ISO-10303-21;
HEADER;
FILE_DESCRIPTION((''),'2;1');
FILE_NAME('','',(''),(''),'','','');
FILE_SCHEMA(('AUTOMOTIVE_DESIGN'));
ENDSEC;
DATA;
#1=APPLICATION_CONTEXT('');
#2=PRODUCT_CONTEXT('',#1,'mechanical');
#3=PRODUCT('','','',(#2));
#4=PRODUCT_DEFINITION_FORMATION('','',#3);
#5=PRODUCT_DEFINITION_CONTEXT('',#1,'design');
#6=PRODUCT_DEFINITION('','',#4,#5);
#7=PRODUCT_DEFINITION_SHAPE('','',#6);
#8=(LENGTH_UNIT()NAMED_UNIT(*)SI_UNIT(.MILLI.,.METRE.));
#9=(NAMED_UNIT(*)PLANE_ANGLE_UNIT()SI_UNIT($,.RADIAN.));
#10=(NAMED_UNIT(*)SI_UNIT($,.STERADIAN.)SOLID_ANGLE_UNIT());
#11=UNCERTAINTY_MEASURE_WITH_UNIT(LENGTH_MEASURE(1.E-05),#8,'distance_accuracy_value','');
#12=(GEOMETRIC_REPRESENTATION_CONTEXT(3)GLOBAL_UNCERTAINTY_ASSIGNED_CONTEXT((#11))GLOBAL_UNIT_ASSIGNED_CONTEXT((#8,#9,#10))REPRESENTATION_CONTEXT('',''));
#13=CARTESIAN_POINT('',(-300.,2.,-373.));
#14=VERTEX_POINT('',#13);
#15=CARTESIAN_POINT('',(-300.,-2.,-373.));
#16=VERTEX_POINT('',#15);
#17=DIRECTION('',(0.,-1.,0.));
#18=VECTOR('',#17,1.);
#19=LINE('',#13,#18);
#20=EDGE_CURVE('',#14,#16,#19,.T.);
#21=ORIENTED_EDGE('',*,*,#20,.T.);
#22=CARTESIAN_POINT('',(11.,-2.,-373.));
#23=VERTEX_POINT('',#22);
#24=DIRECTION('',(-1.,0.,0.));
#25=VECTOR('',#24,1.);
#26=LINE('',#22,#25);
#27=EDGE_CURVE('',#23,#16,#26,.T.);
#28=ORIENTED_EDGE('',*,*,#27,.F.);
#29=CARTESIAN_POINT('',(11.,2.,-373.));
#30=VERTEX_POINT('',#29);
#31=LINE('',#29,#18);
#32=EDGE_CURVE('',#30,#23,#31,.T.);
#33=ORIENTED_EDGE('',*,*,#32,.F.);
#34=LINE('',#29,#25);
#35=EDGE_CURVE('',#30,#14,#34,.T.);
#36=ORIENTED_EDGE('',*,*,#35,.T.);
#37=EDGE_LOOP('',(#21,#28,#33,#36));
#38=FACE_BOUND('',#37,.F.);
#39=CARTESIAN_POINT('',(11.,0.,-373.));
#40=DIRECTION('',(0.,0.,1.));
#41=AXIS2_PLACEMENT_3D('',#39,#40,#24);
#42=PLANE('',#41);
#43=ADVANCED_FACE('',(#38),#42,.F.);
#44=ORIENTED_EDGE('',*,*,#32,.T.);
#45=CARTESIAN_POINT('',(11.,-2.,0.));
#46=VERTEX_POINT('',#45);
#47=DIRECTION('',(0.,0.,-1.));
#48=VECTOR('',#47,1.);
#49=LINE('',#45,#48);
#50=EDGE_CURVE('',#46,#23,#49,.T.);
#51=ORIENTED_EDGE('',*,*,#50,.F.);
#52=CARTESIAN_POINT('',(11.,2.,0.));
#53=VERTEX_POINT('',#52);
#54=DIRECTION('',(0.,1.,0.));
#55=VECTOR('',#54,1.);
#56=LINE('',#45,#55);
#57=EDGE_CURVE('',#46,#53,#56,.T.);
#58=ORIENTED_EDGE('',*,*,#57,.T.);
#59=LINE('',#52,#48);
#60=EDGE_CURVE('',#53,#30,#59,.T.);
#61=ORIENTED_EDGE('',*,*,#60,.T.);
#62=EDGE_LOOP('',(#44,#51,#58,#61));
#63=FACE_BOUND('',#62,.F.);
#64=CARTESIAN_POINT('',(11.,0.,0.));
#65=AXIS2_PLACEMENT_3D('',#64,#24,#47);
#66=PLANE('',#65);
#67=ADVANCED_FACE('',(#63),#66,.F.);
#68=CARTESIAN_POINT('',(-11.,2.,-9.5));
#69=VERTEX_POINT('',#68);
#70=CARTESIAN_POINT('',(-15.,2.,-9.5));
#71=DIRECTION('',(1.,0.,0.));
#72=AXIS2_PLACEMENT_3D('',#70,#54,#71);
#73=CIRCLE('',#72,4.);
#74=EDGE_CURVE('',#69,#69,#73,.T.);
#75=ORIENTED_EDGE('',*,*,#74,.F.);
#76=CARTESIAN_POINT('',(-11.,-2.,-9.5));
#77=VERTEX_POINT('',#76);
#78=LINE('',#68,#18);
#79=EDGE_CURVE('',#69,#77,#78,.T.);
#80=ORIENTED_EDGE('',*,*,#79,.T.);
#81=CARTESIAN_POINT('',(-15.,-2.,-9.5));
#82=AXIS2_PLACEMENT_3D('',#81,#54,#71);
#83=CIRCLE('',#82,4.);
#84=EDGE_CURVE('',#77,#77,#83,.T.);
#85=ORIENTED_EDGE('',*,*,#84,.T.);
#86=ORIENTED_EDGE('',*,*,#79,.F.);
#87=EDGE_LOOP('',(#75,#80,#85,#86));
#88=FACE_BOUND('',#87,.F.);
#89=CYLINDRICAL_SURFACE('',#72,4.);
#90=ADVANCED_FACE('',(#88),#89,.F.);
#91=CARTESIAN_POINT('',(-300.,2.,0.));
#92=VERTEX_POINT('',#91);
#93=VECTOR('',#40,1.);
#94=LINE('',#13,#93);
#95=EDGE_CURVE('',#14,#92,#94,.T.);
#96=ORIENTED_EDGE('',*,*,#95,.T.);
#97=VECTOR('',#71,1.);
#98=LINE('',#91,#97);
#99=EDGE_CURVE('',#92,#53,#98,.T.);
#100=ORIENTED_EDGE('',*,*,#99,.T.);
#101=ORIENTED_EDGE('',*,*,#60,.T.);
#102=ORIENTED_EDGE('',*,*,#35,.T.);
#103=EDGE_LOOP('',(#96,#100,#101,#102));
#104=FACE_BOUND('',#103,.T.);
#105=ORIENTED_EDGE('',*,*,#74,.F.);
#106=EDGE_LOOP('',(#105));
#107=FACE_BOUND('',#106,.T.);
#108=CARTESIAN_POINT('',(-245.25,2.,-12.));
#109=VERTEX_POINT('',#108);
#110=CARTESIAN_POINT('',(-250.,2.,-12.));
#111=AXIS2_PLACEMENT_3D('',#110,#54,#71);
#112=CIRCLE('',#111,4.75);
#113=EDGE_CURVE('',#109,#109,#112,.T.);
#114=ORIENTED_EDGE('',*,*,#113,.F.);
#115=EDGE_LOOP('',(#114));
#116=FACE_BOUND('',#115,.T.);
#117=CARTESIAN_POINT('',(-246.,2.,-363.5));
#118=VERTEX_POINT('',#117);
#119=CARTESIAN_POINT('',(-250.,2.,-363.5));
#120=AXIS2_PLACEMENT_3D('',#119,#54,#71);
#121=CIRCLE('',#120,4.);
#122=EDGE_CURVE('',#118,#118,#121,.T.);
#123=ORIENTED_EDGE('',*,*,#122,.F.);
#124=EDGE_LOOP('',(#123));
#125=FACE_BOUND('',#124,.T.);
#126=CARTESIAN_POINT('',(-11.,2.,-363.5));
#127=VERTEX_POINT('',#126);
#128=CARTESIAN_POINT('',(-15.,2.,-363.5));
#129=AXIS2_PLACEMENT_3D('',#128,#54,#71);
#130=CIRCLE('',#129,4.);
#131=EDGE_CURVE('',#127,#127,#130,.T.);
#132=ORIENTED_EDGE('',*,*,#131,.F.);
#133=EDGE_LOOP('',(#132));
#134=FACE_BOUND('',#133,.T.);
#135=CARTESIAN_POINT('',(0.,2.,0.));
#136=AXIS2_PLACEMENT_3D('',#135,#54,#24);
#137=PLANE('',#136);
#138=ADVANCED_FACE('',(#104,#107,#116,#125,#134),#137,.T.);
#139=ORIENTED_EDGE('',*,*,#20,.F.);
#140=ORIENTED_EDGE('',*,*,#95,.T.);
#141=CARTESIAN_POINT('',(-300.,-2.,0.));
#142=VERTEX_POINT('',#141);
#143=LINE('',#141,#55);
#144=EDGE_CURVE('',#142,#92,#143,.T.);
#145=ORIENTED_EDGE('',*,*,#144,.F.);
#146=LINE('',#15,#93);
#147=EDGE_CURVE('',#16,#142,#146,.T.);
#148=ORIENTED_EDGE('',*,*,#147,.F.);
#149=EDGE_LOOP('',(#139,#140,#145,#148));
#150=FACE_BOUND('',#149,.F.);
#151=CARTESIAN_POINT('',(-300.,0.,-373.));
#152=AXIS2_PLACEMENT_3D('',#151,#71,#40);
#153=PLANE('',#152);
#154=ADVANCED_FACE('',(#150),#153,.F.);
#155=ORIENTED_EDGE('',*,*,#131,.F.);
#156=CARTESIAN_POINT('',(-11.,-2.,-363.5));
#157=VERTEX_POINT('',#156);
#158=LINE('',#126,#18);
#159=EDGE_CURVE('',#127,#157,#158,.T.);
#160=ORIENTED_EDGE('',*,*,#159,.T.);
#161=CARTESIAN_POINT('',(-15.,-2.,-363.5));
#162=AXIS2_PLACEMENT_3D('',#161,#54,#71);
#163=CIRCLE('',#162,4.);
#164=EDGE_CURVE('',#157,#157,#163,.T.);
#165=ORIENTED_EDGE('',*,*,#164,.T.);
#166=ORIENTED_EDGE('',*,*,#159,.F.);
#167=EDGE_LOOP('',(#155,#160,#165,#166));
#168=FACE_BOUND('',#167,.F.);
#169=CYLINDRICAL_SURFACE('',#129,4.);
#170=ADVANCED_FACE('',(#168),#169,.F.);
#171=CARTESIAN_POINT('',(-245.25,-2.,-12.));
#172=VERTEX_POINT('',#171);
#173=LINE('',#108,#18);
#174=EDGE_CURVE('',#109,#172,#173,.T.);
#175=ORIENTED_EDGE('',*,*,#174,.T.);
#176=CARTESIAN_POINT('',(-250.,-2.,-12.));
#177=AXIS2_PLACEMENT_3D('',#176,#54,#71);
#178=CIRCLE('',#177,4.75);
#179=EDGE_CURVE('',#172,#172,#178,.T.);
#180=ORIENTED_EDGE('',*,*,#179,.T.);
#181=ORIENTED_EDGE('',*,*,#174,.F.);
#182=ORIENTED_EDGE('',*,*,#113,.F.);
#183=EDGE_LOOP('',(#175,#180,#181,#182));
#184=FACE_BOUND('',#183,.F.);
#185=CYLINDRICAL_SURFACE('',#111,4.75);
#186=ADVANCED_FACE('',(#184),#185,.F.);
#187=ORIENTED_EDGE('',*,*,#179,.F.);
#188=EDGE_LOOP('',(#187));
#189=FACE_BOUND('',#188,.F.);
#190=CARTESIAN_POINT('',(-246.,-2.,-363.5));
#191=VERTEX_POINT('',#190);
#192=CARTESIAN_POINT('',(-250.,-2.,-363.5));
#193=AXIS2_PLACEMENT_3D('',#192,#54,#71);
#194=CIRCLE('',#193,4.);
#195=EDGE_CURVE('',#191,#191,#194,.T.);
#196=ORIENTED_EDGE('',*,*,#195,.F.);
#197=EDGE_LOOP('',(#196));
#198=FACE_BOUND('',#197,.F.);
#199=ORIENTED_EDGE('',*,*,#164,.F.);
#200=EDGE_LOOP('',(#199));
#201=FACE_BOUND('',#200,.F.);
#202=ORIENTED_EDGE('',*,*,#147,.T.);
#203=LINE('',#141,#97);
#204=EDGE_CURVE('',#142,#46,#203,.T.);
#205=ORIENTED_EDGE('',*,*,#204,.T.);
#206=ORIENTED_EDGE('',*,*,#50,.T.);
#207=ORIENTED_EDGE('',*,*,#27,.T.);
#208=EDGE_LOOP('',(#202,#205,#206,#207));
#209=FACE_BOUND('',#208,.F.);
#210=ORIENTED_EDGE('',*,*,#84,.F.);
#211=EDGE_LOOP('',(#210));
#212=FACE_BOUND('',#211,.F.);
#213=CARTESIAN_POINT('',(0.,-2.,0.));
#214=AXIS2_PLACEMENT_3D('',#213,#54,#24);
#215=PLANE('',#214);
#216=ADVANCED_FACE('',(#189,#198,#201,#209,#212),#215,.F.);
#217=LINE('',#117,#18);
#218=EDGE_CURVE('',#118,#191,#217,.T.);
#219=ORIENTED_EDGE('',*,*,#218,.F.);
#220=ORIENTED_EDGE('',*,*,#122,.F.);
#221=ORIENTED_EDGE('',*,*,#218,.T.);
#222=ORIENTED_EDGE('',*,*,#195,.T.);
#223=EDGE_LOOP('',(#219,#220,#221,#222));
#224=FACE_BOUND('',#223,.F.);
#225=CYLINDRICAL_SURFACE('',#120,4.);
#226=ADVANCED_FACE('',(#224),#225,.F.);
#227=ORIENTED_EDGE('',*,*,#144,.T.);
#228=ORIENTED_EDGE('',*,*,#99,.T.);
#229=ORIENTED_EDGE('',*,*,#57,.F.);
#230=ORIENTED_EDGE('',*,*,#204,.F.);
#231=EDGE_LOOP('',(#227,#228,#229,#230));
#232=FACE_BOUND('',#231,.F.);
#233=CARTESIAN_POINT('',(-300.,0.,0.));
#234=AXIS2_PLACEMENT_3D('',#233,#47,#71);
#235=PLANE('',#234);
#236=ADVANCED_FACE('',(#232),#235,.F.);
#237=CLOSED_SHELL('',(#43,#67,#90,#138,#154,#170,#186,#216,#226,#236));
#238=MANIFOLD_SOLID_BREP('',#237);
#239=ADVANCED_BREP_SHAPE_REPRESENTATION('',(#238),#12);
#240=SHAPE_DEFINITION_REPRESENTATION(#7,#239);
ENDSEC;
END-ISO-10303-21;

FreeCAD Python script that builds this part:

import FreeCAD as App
import Part
import Sketcher
from FreeCAD import Vector


def add_polygon(sketch, points):
    """Adds a closed chain of lines whose ends are joined by coincident constraints."""
    first, n = sketch.GeometryCount, len(points)
    for a, b in zip(points, points[1:] + points[:1]):
        sketch.addGeometry(Part.LineSegment(App.Vector(*a, 0), App.Vector(*b, 0)), False)
    for i in range(n):
        sketch.addConstraint(Sketcher.Constraint("Coincident", first + i, 2, first + (i + 1) % n, 1))

doc = App.newDocument("Part")
body = doc.addObject("PartDesign::Body", "Body")

# Sketch on XZ plane
sketch1 = body.newObject("Sketcher::SketchObject", "Sketch")
sketch1.AttachmentSupport = (doc.getObject("XZ_Plane"), [""])
sketch1.MapMode = "FlatFace"
add_polygon(sketch1, [(-300, -373), (-300, 0), (11, 0), (11, -373)])  # lines 0-3
sketch1.addConstraint(Sketcher.Constraint("Vertical", 0))
sketch1.addConstraint(Sketcher.Constraint("Horizontal", 1))
sketch1.addConstraint(Sketcher.Constraint("Vertical", 2))
sketch1.addConstraint(Sketcher.Constraint("Horizontal", 3))
sketch1.addConstraint(Sketcher.Constraint("PointOnObject", 0, 2, -1))
sketch1.addConstraint(Sketcher.Constraint("DistanceX", 1, 1, 1, 2, 311.0))
sketch1.addConstraint(Sketcher.Constraint("DistanceY", 0, 1, 0, 2, 373.0))
sketch1.addConstraint(Sketcher.Constraint("DistanceX", 0, 2, -1, 1, 300.0))
pad1 = body.newObject("PartDesign::Pad", "Pad")
pad1.Profile = sketch1
pad1.Length = 4
pad1.Midplane = True

# Sketch on XZ plane
sketch2 = body.newObject("Sketcher::SketchObject", "Sketch001")
sketch2.AttachmentSupport = (doc.getObject("XZ_Plane"), [""])
sketch2.MapMode = "FlatFace"
sketch2.AttachmentOffset = App.Placement(Vector(0, 0, -2), App.Rotation())
sketch2.addGeometry(Part.Circle(Vector(-15, -9.5, 0), Vector(0, 0, 1), 4), False)
sketch2.addGeometry(Part.Circle(Vector(-15, -363.5, 0), Vector(0, 0, 1), 4), False)
sketch2.addGeometry(Part.Circle(Vector(-250, -12, 0), Vector(0, 0, 1), 4.8), False)
sketch2.addGeometry(Part.Circle(Vector(-250, -363.5, 0), Vector(0, 0, 1), 4), False)
sketch2.addConstraint(Sketcher.Constraint("Equal", 0, 1))
sketch2.addConstraint(Sketcher.Constraint("Equal", 1, 3))
sketch2.addConstraint(Sketcher.Constraint("Horizontal", 1, 3, 3, 3))
sketch2.addConstraint(Sketcher.Constraint("Vertical", 0, 3, 1, 3))
sketch2.addConstraint(Sketcher.Constraint("Vertical", 2, 3, 3, 3))
sketch2.addConstraint(Sketcher.Constraint("Diameter", 0, 8.0))
sketch2.addConstraint(Sketcher.Constraint("Diameter", 2, 9.5))
sketch2.addConstraint(Sketcher.Constraint("DistanceY", 2, 3, -1, 1, 12.0))
sketch2.addConstraint(Sketcher.Constraint("DistanceX", 2, 3, 0, 3, 235.0))
sketch2.addConstraint(Sketcher.Constraint("DistanceY", 0, 3, -1, 1, 9.5))
sketch2.addConstraint(Sketcher.Constraint("DistanceX", 0, 3, -1, 1, 15.0))
sketch2.addConstraint(Sketcher.Constraint("DistanceY", 1, 3, 0, 3, 354.0))
pocket1 = body.newObject("PartDesign::Pocket", "Pocket")
pocket1.Profile = sketch2
pocket1.Length = 4
pocket1.Reversed = True

doc.recompute()
